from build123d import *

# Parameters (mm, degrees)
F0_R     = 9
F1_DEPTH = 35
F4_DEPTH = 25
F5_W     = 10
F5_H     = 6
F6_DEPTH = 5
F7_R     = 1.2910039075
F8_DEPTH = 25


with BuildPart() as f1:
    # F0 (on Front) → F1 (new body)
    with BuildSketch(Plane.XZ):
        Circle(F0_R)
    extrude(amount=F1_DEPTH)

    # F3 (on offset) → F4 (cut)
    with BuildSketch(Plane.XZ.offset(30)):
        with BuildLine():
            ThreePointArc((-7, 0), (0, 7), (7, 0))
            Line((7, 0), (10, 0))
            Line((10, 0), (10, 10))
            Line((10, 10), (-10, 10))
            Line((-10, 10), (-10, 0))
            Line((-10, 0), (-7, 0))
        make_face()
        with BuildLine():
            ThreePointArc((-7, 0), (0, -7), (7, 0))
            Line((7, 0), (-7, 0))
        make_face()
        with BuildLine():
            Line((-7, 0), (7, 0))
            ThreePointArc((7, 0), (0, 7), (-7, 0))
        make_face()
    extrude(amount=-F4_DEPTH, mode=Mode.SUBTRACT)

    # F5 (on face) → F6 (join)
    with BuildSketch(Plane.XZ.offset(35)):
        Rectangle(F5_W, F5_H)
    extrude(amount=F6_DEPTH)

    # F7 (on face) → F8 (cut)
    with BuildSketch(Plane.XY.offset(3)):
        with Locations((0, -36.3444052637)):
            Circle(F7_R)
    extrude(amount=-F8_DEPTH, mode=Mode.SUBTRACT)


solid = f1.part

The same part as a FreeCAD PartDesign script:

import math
import FreeCAD as App
import Part
import Sketcher

doc = App.newDocument("Part")
body = doc.addObject("PartDesign::Body", "Body")

# Sketch on XZ plane
sketch1 = doc.addObject("Sketcher::SketchObject", "Sketch")
body.addObject(sketch1)
sketch1.AttachmentSupport = (doc.XZ_Plane, [""])
sketch1.MapMode = "FlatFace"
sketch1.addGeometry(Part.Circle(App.Vector(0, 0, 0), App.Vector(0, 0, 1), 9), False)
sketch1.addConstraint(Sketcher.Constraint("Coincident", 0, 3, -1, 1))
sketch1.addConstraint(Sketcher.Constraint("Diameter", 0, 18.0))
pad1 = doc.addObject("PartDesign::Pad", "Pad")
body.addObject(pad1)
pad1.Profile = sketch1
pad1.Length = 35

# Sketch on XZ plane
sketch2 = doc.addObject("Sketcher::SketchObject", "Sketch001")
body.addObject(sketch2)
sketch2.AttachmentSupport = (doc.XZ_Plane, [""])
sketch2.MapMode = "FlatFace"
sketch2.AttachmentOffset = App.Placement(App.Vector(0, 0, 30), App.Rotation())
sketch2.addGeometry(Part.LineSegment(App.Vector(7, 0, 0), App.Vector(10, 0, 0)), False)
sketch2.addGeometry(Part.LineSegment(App.Vector(10, 0, 0), App.Vector(10, 10, 0)), False)
sketch2.addGeometry(Part.LineSegment(App.Vector(10, 10, 0), App.Vector(-10, 10, 0)), False)
sketch2.addGeometry(Part.LineSegment(App.Vector(-10, 10, 0), App.Vector(-10, 0, 0)), False)
sketch2.addGeometry(Part.LineSegment(App.Vector(-10, 0, 0), App.Vector(-7, 0, 0)), False)
sketch2.addGeometry(Part.ArcOfCircle(Part.Circle(App.Vector(0, 0, 0), App.Vector(0, 0, 1), 7), math.radians(180), math.radians(360)), False)
sketch2.addConstraint(Sketcher.Constraint("Coincident", 0, 2, 1, 1))
sketch2.addConstraint(Sketcher.Constraint("Coincident", 1, 2, 2, 1))
sketch2.addConstraint(Sketcher.Constraint("Coincident", 2, 2, 3, 1))
sketch2.addConstraint(Sketcher.Constraint("Coincident", 3, 2, 4, 1))
sketch2.addConstraint(Sketcher.Constraint("Coincident", 4, 2, 5, 1))
sketch2.addConstraint(Sketcher.Constraint("Coincident", 5, 2, 0, 1))
sketch2.addConstraint(Sketcher.Constraint("Horizontal", 0))
sketch2.addConstraint(Sketcher.Constraint("Vertical", 1))
sketch2.addConstraint(Sketcher.Constraint("Horizontal", 2))
sketch2.addConstraint(Sketcher.Constraint("Vertical", 3))
sketch2.addConstraint(Sketcher.Constraint("Horizontal", 4))
sketch2.addConstraint(Sketcher.Constraint("Coincident", 5, 3, -1, 1))
sketch2.addConstraint(Sketcher.Constraint("Symmetric", 0, 2, 3, 2, -1, 1))
sketch2.addConstraint(Sketcher.Constraint("PointOnObject", 0, 2, -1))
sketch2.addConstraint(Sketcher.Constraint("Radius", 5, 7.0))
sketch2.addConstraint(Sketcher.Constraint("DistanceX", 0, 1, 0, 2, 3.0))
sketch2.addConstraint(Sketcher.Constraint("DistanceY", 1, 1, 1, 2, 10.0))
pocket1 = doc.addObject("PartDesign::Pocket", "Pocket")
body.addObject(pocket1)
pocket1.Profile = sketch2
pocket1.Length = 25

# Sketch on XZ plane
sketch3 = doc.addObject("Sketcher::SketchObject", "Sketch002")
body.addObject(sketch3)
sketch3.AttachmentSupport = (doc.XZ_Plane, [""])
sketch3.MapMode = "FlatFace"
sketch3.AttachmentOffset = App.Placement(App.Vector(0, 0, 35), App.Rotation())
sketch3.addGeometry(Part.LineSegment(App.Vector(-5, 3, 0), App.Vector(-5, -3, 0)), False)
sketch3.addGeometry(Part.LineSegment(App.Vector(-5, -3, 0), App.Vector(5, -3, 0)), False)
sketch3.addGeometry(Part.LineSegment(App.Vector(5, -3, 0), App.Vector(5, 3, 0)), False)
sketch3.addGeometry(Part.LineSegment(App.Vector(5, 3, 0), App.Vector(-5, 3, 0)), False)
sketch3.addConstraint(Sketcher.Constraint("Coincident", 0, 2, 1, 1))
sketch3.addConstraint(Sketcher.Constraint("Coincident", 1, 2, 2, 1))
sketch3.addConstraint(Sketcher.Constraint("Coincident", 2, 2, 3, 1))
sketch3.addConstraint(Sketcher.Constraint("Coincident", 3, 2, 0, 1))
sketch3.addConstraint(Sketcher.Constraint("Vertical", 0))
sketch3.addConstraint(Sketcher.Constraint("Horizontal", 1))
sketch3.addConstraint(Sketcher.Constraint("Vertical", 2))
sketch3.addConstraint(Sketcher.Constraint("Horizontal", 3))
sketch3.addConstraint(Sketcher.Constraint("Symmetric", 0, 2, 2, 2, -1, 1))
sketch3.addConstraint(Sketcher.Constraint("DistanceX", 1, 1, 1, 2, 10.0))
sketch3.addConstraint(Sketcher.Constraint("DistanceY", 0, 2, 0, 1, 6.0))
pad2 = doc.addObject("PartDesign::Pad", "Pad001")
body.addObject(pad2)
pad2.Profile = sketch3
pad2.Length = 5

# Sketch on XY plane
sketch4 = doc.addObject("Sketcher::SketchObject", "Sketch003")
body.addObject(sketch4)
sketch4.AttachmentSupport = (doc.XY_Plane, [""])
sketch4.MapMode = "FlatFace"
sketch4.AttachmentOffset = App.Placement(App.Vector(0, 0, 3), App.Rotation())
sketch4.addGeometry(Part.Circle(App.Vector(0, -36.344405, 0), App.Vector(0, 0, 1), 1.291004), False)
sketch4.addConstraint(Sketcher.Constraint("PointOnObject", 0, 3, -2))
sketch4.addConstraint(Sketcher.Constraint("Diameter", 0, 2.582008))
sketch4.addConstraint(Sketcher.Constraint("DistanceY", 0, 3, -1, 1, 36.344405))
pocket2 = doc.addObject("PartDesign::Pocket", "Pocket001")
body.addObject(pocket2)
pocket2.Profile = sketch4
pocket2.Length = 25

doc.recompute()
